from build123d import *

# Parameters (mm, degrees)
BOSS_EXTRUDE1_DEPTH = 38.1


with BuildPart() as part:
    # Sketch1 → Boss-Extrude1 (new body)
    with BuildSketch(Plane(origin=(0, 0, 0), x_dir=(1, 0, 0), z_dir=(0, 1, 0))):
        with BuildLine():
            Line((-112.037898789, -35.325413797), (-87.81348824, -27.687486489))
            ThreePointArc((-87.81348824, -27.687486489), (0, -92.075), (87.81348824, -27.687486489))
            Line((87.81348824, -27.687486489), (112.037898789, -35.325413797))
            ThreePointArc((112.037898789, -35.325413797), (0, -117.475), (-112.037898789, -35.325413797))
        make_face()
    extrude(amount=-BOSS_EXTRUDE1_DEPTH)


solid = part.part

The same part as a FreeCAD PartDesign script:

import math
import FreeCAD as App
import Part
import Sketcher
from FreeCAD import Vector
Q = App.Units.Quantity

doc = App.newDocument("Part")
body = doc.addObject("PartDesign::Body", "Body")

# Sketch on XZ plane
sketch1 = body.newObject("Sketcher::SketchObject", "Sketch")
sketch1.AttachmentSupport = (doc.getObject("XZ_Plane"), [""])
sketch1.MapMode = "FlatFace"
sketch1.addGeometry(Part.LineSegment(Vector(-88, 28, 0), Vector(-112, 35, 0)), False)
sketch1.addGeometry(Part.ArcOfCircle(Part.Circle(Vector(0, 0, 0), Vector(0, 0, 1), 117), math.radians(18), math.radians(162)), False)
sketch1.addGeometry(Part.LineSegment(Vector(112, 35, 0), Vector(88, 28, 0)), False)
sketch1.addGeometry(Part.ArcOfCircle(Part.Circle(Vector(0, 0, 0), Vector(0, 0, 1), 92), math.radians(17), math.radians(163)), False)
sketch1.addConstraint(Sketcher.Constraint("Coincident", 0, 2, 1, 2))
sketch1.addConstraint(Sketcher.Constraint("Coincident", 1, 1, 2, 1))
sketch1.addConstraint(Sketcher.Constraint("Coincident", 2, 2, 3, 1))
sketch1.addConstraint(Sketcher.Constraint("Coincident", 3, 2, 0, 1))
sketch1.addConstraint(Sketcher.Constraint("Coincident", 1, 3, -1, 1))
sketch1.addConstraint(Sketcher.Constraint("Coincident", 3, 3, -1, 1))
sketch1.addConstraint(Sketcher.Constraint("Horizontal", 0, 2, 1, 1))
sketch1.addConstraint(Sketcher.Constraint("Horizontal", 2, 2, 3, 2))
sketch1.addConstraint(Sketcher.Constraint("Distance", 0, Q("1 in")))
sketch1.addConstraint(Sketcher.Constraint("Radius", 1, Q("4.625 in")))
sketch1.addConstraint(Sketcher.Constraint("Angle", 0, Q("162.5 deg")))
sketch1.addConstraint(Sketcher.Constraint("DistanceX", 0, 2, -1, 1, 112.037899))
pad1 = body.newObject("PartDesign::Pad", "Pad")
pad1.Profile = sketch1
pad1.Length = Q("1.5 in")

doc.recompute()
